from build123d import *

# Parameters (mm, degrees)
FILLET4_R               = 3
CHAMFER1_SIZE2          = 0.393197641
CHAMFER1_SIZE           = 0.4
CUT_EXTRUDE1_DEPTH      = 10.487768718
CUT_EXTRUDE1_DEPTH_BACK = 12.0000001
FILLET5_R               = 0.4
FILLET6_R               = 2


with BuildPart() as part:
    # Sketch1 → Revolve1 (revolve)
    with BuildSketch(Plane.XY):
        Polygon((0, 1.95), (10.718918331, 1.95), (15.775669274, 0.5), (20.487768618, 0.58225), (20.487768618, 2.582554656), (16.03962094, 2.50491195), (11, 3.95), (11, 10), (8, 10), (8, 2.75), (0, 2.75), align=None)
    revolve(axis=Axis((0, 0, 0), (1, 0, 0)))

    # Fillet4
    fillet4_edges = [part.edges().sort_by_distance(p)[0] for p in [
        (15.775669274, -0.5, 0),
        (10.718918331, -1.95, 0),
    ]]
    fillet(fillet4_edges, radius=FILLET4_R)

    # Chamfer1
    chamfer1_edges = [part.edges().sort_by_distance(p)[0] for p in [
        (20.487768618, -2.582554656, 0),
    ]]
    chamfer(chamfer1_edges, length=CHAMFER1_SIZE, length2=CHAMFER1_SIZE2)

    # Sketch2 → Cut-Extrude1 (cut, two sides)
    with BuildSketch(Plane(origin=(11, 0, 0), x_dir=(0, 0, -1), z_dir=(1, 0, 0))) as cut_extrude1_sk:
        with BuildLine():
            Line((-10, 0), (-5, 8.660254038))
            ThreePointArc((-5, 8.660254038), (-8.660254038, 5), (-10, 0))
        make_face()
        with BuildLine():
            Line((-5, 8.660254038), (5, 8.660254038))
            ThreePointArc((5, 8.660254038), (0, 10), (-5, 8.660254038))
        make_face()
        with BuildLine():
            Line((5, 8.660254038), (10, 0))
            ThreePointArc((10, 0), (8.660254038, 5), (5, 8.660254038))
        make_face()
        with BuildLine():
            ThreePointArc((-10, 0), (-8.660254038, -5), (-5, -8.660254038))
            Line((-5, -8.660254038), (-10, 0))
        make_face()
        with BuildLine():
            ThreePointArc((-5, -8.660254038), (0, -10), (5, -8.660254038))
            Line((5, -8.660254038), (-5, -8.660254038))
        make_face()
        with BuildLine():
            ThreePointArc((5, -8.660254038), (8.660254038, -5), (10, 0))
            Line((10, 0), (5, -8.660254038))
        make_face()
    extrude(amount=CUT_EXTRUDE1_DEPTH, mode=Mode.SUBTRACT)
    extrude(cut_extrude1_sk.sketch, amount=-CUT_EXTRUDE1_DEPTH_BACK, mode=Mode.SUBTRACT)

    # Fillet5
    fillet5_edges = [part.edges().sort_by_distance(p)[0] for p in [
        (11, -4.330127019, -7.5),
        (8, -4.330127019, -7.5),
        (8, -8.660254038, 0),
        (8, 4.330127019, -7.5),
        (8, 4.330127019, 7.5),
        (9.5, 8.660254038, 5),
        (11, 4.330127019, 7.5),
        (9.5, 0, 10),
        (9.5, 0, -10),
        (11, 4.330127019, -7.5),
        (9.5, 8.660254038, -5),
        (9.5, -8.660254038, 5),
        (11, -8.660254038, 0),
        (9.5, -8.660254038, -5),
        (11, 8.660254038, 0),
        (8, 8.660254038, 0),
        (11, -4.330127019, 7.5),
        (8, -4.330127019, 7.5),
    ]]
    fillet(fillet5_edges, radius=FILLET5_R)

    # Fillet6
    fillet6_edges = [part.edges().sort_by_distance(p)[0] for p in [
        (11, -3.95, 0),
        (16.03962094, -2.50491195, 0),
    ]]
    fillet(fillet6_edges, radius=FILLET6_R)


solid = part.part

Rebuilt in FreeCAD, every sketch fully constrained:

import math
import FreeCAD as App
import Part
import Sketcher
from FreeCAD import Vector
Q = App.Units.Quantity


def edges_at(feature, points):
    """Names of the edges that pass closest to the given points."""
    edges = feature.Shape.Edges
    near = lambda p: min(range(len(edges)), key=lambda i: edges[i].distToShape(Part.Vertex(*p))[0])
    return sorted({f"Edge{near(p) + 1}" for p in points})

doc = App.newDocument("Part")
body = doc.addObject("PartDesign::Body", "Body")

# Sketch on XY plane
sketch1 = body.newObject("Sketcher::SketchObject", "Sketch")
sketch1.AttachmentSupport = (doc.getObject("XY_Plane"), [""])
sketch1.MapMode = "FlatFace"
sketch1.addGeometry(Part.LineSegment(Vector(0, 1.95, 0), Vector(10.718918, 1.95, 0)), False)
sketch1.addGeometry(Part.LineSegment(Vector(10.718918, 1.95, 0), Vector(15.775669, 0.5, 0)), False)
sketch1.addGeometry(Part.LineSegment(Vector(15.775669, 0.5, 0), Vector(20.487769, 0.58225, 0)), False)
sketch1.addGeometry(Part.LineSegment(Vector(20.487769, 0.58225, 0), Vector(20.487769, 2.582555, 0)), False)
sketch1.addGeometry(Part.LineSegment(Vector(20.487769, 2.582555, 0), Vector(16.039621, 2.504912, 0)), False)
sketch1.addGeometry(Part.LineSegment(Vector(16.039621, 2.504912, 0), Vector(11, 3.95, 0)), False)
sketch1.addGeometry(Part.LineSegment(Vector(11, 3.95, 0), Vector(11, 10, 0)), False)
sketch1.addGeometry(Part.LineSegment(Vector(11, 10, 0), Vector(8, 10, 0)), False)
sketch1.addGeometry(Part.LineSegment(Vector(8, 10, 0), Vector(8, 2.75, 0)), False)
sketch1.addGeometry(Part.LineSegment(Vector(8, 2.75, 0), Vector(0, 2.75, 0)), False)
sketch1.addGeometry(Part.LineSegment(Vector(0, 2.75, 0), Vector(0, 1.95, 0)), False)
sketch1.addConstraint(Sketcher.Constraint("Coincident", 0, 2, 1, 1))
sketch1.addConstraint(Sketcher.Constraint("Coincident", 1, 2, 2, 1))
sketch1.addConstraint(Sketcher.Constraint("Coincident", 2, 2, 3, 1))
sketch1.addConstraint(Sketcher.Constraint("Coincident", 3, 2, 4, 1))
sketch1.addConstraint(Sketcher.Constraint("Coincident", 4, 2, 5, 1))
sketch1.addConstraint(Sketcher.Constraint("Coincident", 5, 2, 6, 1))
sketch1.addConstraint(Sketcher.Constraint("Coincident", 6, 2, 7, 1))
sketch1.addConstraint(Sketcher.Constraint("Coincident", 7, 2, 8, 1))
sketch1.addConstraint(Sketcher.Constraint("Coincident", 8, 2, 9, 1))
sketch1.addConstraint(Sketcher.Constraint("Coincident", 9, 2, 10, 1))
sketch1.addConstraint(Sketcher.Constraint("Coincident", 10, 2, 0, 1))
sketch1.addConstraint(Sketcher.Constraint("Horizontal", 0))
sketch1.addConstraint(Sketcher.Constraint("Vertical", 3))
sketch1.addConstraint(Sketcher.Constraint("Vertical", 6))
sketch1.addConstraint(Sketcher.Constraint("Horizontal", 7))
sketch1.addConstraint(Sketcher.Constraint("Vertical", 8))
sketch1.addConstraint(Sketcher.Constraint("Horizontal", 9))
sketch1.addConstraint(Sketcher.Constraint("Vertical", 10))
sketch1.addConstraint(Sketcher.Constraint("PointOnObject", 9, 2, -2))
sketch1.addConstraint(Sketcher.Constraint("Parallel", 2, 4))
sketch1.addConstraint(Sketcher.Constraint("Parallel", 1, 5))
sketch1.addConstraint(Sketcher.Constraint("DistanceX", 7, 2, 7, 1, 3.0))
sketch1.addConstraint(Sketcher.Constraint("DistanceX", 9, 2, 9, 1, 8.0))
sketch1.addConstraint(Sketcher.Constraint("Angle", 1, Q("-16 deg")))
sketch1.addConstraint(Sketcher.Constraint("Angle", 2, Q("1 deg")))
sketch1.addConstraint(Sketcher.Constraint("DistanceY", 10, 2, 10, 1, 0.8))
sketch1.addConstraint(Sketcher.Constraint("DistanceY", -1, 1, 6, 2, 10.0))
sketch1.addConstraint(Sketcher.Constraint("DistanceY", 0, 2, 5, 2, 2.0))
sketch1.addConstraint(Sketcher.Constraint("DistanceY", 6, 1, 6, 2, 6.05))
sketch1.addConstraint(Sketcher.Constraint("DistanceY", -1, 1, 1, 2, 0.5))
sketch1.addConstraint(Sketcher.Constraint("DistanceX", 0, 1, 0, 2, 10.718918))
sketch1.addConstraint(Sketcher.Constraint("DistanceX", 1, 2, 2, 2, 4.712099))
sketch1.addConstraint(Sketcher.Constraint("DistanceY", 3, 1, 3, 2, 2.000305))
revolution = body.newObject("PartDesign::Revolution", "Revolution")
revolution.Profile = sketch1
revolution.ReferenceAxis = (sketch1, ["H_Axis"])
revolution.Angle = 360
doc.recompute()

fillet = body.newObject("PartDesign::Fillet", "Fillet")
fillet.Base = (revolution, edges_at(revolution, [(15.776, -0.5, 0), (10.719, -1.95, 0)]))
fillet.Radius = 3
doc.recompute()

chamfer = body.newObject("PartDesign::Chamfer", "Chamfer")
chamfer.Base = (fillet, edges_at(fillet, [(20.488, -2.583, 0)]))
chamfer.ChamferType = "Two distances"
chamfer.Size = 0.4
chamfer.Size2 = 0.393198

# Sketch on YZ plane
sketch2 = body.newObject("Sketcher::SketchObject", "Sketch001")
sketch2.AttachmentSupport = (doc.getObject("YZ_Plane"), [""])
sketch2.MapMode = "FlatFace"
sketch2.AttachmentOffset = App.Placement(Vector(0, 0, 11), App.Rotation())
sketch2.addGeometry(Part.LineSegment(Vector(0, 10, 0), Vector(8.660254, 5, 0)), False)
sketch2.addGeometry(Part.ArcOfCircle(Part.Circle(Vector(0, 0, 0), Vector(0, 0, 1), 10), math.radians(30), math.radians(90)), False)
sketch2.addGeometry(Part.LineSegment(Vector(8.660254, 5, 0), Vector(8.660254, -5, 0)), False)
sketch2.addGeometry(Part.ArcOfCircle(Part.Circle(Vector(0, 0, 0), Vector(0, 0, 1), 10), math.radians(-30), math.radians(30)), False)
sketch2.addGeometry(Part.LineSegment(Vector(8.660254, -5, 0), Vector(0, -10, 0)), False)
sketch2.addGeometry(Part.ArcOfCircle(Part.Circle(Vector(0, 0, 0), Vector(0, 0, 1), 10), math.radians(-90), math.radians(-30)), False)
sketch2.addGeometry(Part.ArcOfCircle(Part.Circle(Vector(0, 0, 0), Vector(0, 0, 1), 10), math.radians(90), math.radians(150)), False)
sketch2.addGeometry(Part.LineSegment(Vector(-8.660254, 5, 0), Vector(0, 10, 0)), False)
sketch2.addGeometry(Part.ArcOfCircle(Part.Circle(Vector(0, 0, 0), Vector(0, 0, 1), 10), math.radians(150), math.radians(210)), False)
sketch2.addGeometry(Part.LineSegment(Vector(-8.660254, -5, 0), Vector(-8.660254, 5, 0)), False)
sketch2.addGeometry(Part.ArcOfCircle(Part.Circle(Vector(0, 0, 0), Vector(0, 0, 1), 10), math.radians(-150), math.radians(-90)), False)
sketch2.addGeometry(Part.LineSegment(Vector(0, -10, 0), Vector(-8.660254, -5, 0)), False)
sketch2.addConstraint(Sketcher.Constraint("Coincident", 0, 1, 1, 2))
sketch2.addConstraint(Sketcher.Constraint("Coincident", 1, 1, 0, 2))
sketch2.addConstraint(Sketcher.Constraint("Coincident", 2, 1, 3, 2))
sketch2.addConstraint(Sketcher.Constraint("Coincident", 3, 1, 2, 2))
sketch2.addConstraint(Sketcher.Constraint("Coincident", 4, 1, 5, 2))
sketch2.addConstraint(Sketcher.Constraint("Coincident", 5, 1, 4, 2))
sketch2.addConstraint(Sketcher.Constraint("Coincident", 6, 1, 7, 2))
sketch2.addConstraint(Sketcher.Constraint("Coincident", 7, 1, 6, 2))
sketch2.addConstraint(Sketcher.Constraint("Coincident", 8, 1, 9, 2))
sketch2.addConstraint(Sketcher.Constraint("Coincident", 9, 1, 8, 2))
sketch2.addConstraint(Sketcher.Constraint("Coincident", 10, 1, 11, 2))
sketch2.addConstraint(Sketcher.Constraint("Coincident", 11, 1, 10, 2))
sketch2.addConstraint(Sketcher.Constraint("Vertical", 2))
sketch2.addConstraint(Sketcher.Constraint("Vertical", 9))
sketch2.addConstraint(Sketcher.Constraint("Coincident", 1, 3, -1, 1))
sketch2.addConstraint(Sketcher.Constraint("Coincident", 3, 3, -1, 1))
sketch2.addConstraint(Sketcher.Constraint("Coincident", 5, 3, -1, 1))
sketch2.addConstraint(Sketcher.Constraint("Coincident", 6, 3, -1, 1))
sketch2.addConstraint(Sketcher.Constraint("Coincident", 8, 3, -1, 1))
sketch2.addConstraint(Sketcher.Constraint("Coincident", 10, 3, -1, 1))
sketch2.addConstraint(Sketcher.Constraint("Coincident", 2, 1, 1, 1))
sketch2.addConstraint(Sketcher.Constraint("Coincident", 4, 1, 3, 1))
sketch2.addConstraint(Sketcher.Constraint("Coincident", 6, 1, 0, 1))
sketch2.addConstraint(Sketcher.Constraint("Coincident", 8, 1, 7, 1))
sketch2.addConstraint(Sketcher.Constraint("Coincident", 10, 1, 9, 1))
sketch2.addConstraint(Sketcher.Constraint("PointOnObject", 0, 1, -2))
sketch2.addConstraint(Sketcher.Constraint("PointOnObject", 5, 1, -2))
sketch2.addConstraint(Sketcher.Constraint("PointOnObject", 11, 1, -2))
sketch2.addConstraint(Sketcher.Constraint("Parallel", 4, 7))
sketch2.addConstraint(Sketcher.Constraint("Radius", 1, 10.0))
sketch2.addConstraint(Sketcher.Constraint("DistanceY", 2, 2, 2, 1, 10.0))
pocket1 = body.newObject("PartDesign::Pocket", "Pocket")
pocket1.Profile = sketch2
pocket1.Type = "ThroughAll"
pocket1.Midplane = True
doc.recompute()

fillet2 = body.newObject("PartDesign::Fillet", "Fillet001")
fillet2.Base = (pocket1, edges_at(pocket1, [
    (11, -4.33, -7.5),
    (8, -4.33, -7.5),
    (8, -8.66, 0),
    (8, 4.33, -7.5),
    (8, 4.33, 7.5),
    (9.5, 8.66, 5),
    (11, 4.33, 7.5),
    (9.5, 0, 10),
    (9.5, 0, -10),
    (11, 4.33, -7.5),
    (9.5, 8.66, -5),
    (9.5, -8.66, 5),
    (11, -8.66, 0),
    (9.5, -8.66, -5),
    (11, 8.66, 0),
    (8, 8.66, 0),
    (11, -4.33, 7.5),
    (8, -4.33, 7.5),
]))
fillet2.Radius = 0.4
doc.recompute()

fillet3 = body.newObject("PartDesign::Fillet", "Fillet002")
fillet3.Base = (fillet2, edges_at(fillet2, [(11, -3.95, 0), (16.04, -2.505, 0)]))
fillet3.Radius = 2

doc.recompute()
